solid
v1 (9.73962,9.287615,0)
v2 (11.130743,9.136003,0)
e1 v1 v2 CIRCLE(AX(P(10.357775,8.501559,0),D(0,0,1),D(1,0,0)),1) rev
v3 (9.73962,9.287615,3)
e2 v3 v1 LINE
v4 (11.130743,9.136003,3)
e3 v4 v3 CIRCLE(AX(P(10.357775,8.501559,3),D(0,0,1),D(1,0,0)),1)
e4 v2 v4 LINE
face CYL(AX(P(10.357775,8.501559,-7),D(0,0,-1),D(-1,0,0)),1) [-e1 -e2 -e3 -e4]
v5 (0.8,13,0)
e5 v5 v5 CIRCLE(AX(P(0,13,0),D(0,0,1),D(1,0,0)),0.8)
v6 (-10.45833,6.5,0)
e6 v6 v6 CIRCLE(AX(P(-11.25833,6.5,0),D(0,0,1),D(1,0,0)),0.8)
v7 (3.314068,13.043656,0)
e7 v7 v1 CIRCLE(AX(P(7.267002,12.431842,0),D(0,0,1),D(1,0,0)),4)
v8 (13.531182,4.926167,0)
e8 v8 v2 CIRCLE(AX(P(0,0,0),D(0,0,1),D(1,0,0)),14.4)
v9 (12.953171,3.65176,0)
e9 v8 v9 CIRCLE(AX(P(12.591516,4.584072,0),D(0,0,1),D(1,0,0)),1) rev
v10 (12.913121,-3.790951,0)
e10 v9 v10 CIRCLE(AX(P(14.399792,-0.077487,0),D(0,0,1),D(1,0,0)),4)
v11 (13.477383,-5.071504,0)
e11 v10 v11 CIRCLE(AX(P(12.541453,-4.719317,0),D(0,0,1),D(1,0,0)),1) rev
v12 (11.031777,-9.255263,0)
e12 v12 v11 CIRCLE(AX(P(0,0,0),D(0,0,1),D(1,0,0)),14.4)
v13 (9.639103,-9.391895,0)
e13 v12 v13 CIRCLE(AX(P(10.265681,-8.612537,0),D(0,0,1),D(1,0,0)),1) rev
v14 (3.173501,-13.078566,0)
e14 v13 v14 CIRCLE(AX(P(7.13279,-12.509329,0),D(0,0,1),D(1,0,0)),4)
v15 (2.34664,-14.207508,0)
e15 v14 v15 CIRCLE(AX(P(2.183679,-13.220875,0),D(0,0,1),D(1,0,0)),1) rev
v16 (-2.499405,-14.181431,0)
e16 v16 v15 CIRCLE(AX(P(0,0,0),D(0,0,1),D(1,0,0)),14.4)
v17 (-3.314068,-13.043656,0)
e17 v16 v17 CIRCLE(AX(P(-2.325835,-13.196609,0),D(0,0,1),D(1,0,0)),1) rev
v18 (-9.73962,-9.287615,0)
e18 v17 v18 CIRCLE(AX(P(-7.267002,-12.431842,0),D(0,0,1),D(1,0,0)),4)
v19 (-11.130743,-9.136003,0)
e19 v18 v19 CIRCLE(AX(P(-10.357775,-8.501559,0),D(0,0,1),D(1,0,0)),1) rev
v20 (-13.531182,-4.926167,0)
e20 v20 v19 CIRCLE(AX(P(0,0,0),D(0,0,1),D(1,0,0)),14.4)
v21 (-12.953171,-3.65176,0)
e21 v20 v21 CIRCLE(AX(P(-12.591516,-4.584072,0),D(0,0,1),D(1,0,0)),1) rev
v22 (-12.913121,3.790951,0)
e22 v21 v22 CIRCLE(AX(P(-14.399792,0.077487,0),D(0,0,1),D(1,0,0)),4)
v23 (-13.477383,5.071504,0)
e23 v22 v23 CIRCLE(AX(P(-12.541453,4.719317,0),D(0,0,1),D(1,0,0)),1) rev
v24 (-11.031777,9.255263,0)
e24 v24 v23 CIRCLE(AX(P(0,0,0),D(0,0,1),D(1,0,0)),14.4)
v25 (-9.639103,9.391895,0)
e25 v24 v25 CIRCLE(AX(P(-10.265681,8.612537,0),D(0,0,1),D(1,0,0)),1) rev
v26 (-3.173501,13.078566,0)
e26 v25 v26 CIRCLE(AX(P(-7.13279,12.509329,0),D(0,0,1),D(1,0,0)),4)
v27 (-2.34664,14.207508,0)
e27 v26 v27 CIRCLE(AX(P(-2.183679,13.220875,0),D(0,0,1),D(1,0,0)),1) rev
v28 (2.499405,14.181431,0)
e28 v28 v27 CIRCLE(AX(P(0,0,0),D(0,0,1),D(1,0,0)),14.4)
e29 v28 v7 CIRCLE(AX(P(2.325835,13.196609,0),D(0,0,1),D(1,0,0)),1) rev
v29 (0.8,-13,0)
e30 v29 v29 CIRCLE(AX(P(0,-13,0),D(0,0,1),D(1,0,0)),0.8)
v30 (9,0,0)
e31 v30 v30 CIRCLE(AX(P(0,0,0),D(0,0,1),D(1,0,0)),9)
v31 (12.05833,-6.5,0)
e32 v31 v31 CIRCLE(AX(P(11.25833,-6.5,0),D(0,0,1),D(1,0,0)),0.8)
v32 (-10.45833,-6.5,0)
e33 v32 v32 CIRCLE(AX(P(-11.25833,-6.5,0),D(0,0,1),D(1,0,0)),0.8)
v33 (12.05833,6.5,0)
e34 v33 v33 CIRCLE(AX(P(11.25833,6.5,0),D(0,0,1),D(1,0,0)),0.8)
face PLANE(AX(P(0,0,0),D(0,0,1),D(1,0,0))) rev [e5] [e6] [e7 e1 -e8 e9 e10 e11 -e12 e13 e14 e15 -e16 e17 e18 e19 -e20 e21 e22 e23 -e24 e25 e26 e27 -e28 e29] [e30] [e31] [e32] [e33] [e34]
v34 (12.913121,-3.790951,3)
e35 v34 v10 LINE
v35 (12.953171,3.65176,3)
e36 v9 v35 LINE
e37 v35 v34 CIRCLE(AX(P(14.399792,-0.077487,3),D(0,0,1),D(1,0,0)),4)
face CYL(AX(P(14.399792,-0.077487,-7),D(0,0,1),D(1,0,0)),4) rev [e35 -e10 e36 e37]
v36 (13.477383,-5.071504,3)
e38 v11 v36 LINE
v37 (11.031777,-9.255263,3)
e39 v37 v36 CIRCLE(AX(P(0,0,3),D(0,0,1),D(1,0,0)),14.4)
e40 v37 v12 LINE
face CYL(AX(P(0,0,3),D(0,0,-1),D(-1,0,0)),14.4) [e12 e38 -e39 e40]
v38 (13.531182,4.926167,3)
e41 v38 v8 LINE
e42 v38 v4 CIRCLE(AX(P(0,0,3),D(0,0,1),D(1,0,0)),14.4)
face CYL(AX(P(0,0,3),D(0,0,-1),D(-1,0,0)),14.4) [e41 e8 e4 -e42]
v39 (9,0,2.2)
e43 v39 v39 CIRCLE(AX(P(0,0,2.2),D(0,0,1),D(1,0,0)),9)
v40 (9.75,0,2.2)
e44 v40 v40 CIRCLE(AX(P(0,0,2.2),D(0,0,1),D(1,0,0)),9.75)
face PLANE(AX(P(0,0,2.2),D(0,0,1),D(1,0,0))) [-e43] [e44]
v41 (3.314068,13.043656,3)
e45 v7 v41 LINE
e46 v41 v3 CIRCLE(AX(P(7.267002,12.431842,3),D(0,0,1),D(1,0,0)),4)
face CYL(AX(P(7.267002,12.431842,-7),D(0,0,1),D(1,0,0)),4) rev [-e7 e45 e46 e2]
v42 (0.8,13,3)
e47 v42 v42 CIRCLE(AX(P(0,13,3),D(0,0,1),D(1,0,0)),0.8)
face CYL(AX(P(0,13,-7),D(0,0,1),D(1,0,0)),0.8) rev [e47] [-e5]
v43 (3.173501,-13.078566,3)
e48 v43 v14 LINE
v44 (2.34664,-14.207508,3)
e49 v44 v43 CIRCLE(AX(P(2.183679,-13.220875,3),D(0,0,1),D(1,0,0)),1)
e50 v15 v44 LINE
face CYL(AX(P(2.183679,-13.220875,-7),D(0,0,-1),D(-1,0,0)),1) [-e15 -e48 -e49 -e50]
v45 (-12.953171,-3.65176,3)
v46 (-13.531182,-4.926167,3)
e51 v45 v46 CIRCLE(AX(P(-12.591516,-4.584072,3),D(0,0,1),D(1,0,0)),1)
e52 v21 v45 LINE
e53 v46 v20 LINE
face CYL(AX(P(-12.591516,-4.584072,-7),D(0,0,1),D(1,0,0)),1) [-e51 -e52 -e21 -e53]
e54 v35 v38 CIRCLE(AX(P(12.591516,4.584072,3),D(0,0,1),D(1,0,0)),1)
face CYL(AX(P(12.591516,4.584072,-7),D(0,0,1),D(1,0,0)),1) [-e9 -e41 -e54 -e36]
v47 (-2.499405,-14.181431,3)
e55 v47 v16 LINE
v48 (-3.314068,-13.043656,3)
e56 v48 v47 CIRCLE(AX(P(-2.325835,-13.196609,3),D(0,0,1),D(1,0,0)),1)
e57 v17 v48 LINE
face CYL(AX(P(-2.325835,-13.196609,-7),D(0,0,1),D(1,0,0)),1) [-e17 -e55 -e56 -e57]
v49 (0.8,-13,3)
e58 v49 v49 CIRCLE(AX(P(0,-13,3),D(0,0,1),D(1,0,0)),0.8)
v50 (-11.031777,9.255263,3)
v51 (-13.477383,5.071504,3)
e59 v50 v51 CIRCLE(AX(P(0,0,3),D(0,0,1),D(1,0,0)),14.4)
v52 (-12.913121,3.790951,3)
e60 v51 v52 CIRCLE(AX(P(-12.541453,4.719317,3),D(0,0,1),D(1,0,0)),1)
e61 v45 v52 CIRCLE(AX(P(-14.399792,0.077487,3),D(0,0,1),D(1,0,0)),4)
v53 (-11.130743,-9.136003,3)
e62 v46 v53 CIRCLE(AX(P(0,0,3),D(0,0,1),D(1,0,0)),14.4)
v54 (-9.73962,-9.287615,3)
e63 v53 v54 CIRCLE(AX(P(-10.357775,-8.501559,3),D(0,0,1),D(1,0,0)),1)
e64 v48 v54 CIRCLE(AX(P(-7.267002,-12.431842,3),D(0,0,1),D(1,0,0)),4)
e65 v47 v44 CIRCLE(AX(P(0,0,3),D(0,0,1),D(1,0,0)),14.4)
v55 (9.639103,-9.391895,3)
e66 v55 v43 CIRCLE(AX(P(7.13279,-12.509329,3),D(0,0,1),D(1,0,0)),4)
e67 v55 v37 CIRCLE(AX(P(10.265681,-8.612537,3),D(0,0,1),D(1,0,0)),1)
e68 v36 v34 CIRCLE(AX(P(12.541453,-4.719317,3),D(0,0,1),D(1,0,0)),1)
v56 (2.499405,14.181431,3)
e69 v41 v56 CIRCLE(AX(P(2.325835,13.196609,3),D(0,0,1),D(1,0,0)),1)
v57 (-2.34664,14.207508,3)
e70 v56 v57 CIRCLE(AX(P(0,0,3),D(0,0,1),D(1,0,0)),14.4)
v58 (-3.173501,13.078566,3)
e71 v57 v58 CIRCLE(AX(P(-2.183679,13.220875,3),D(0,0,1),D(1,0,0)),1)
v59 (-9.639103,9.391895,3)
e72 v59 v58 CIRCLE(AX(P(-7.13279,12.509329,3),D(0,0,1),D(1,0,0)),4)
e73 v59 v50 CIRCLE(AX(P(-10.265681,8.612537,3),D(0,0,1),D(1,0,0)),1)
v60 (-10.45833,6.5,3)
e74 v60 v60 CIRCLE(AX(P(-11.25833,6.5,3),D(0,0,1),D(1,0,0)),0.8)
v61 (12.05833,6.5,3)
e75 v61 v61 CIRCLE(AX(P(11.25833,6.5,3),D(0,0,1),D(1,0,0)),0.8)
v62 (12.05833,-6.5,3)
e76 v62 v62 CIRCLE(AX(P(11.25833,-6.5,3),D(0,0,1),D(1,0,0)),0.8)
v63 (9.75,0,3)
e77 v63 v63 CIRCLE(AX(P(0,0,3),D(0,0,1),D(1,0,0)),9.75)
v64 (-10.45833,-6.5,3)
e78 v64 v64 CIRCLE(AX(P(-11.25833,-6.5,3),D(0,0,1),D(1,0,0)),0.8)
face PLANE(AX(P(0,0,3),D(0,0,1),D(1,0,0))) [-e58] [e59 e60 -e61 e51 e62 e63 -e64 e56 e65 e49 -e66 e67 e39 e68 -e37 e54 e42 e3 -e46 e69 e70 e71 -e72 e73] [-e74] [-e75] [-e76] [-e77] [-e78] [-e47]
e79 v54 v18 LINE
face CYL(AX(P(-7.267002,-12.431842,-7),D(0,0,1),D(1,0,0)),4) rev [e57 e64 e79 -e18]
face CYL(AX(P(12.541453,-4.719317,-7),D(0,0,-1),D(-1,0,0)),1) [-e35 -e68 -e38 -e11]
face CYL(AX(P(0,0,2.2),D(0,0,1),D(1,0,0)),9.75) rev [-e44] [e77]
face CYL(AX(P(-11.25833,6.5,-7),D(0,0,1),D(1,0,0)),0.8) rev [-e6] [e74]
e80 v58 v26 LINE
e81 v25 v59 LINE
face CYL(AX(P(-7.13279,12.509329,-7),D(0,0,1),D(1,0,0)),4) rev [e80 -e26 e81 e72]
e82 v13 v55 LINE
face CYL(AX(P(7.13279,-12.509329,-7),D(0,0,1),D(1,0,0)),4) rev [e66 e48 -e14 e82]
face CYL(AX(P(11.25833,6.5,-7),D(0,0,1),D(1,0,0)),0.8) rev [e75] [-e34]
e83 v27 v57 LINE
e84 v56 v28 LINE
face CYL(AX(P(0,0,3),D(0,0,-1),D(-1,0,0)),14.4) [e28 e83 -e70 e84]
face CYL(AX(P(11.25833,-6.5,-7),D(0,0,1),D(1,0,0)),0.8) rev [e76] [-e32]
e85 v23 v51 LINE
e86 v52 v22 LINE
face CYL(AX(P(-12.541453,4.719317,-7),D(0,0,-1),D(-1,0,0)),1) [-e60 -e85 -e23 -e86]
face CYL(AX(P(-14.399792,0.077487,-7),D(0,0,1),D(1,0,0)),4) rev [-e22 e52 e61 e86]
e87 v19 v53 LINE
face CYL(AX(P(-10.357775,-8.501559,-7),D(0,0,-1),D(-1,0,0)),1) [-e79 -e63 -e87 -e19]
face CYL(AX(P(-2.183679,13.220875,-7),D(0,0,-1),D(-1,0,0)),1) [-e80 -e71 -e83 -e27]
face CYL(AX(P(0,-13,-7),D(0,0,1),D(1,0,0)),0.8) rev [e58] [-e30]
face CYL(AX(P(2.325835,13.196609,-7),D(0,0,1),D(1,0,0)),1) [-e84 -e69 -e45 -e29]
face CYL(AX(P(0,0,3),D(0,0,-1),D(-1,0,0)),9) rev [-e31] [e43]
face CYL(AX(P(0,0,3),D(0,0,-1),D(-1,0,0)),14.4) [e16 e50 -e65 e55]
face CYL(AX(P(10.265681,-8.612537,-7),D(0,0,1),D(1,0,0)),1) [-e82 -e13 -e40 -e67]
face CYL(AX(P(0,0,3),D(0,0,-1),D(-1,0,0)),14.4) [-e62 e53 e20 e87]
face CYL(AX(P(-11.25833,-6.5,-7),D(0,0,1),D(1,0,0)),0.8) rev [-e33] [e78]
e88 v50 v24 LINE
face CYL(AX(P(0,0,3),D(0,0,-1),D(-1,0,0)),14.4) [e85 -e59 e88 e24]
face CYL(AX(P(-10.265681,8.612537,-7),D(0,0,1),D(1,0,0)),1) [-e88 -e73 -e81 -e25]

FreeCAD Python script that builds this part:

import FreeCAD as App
import Part
import Sketcher
Q = App.Units.Quantity


def edges_at(feature, points):
    """Names of the edges that pass closest to the given points."""
    edges = feature.Shape.Edges
    near = lambda p: min(range(len(edges)), key=lambda i: edges[i].distToShape(Part.Vertex(*p))[0])
    return sorted({f"Edge{near(p) + 1}" for p in points})

doc = App.newDocument("Part")
body = doc.addObject("PartDesign::Body", "Body")

sketch1 = body.newObject("Sketcher::SketchObject", "Sketch")
sketch1.AttachmentSupport = (doc.getObject("XY_Plane"), [""])
sketch1.MapMode = "FlatFace"
sketch1.addGeometry([
    Part.Circle(App.Vector(0, 0, 0), App.Vector(0, 0, 1), 14),
    Part.Circle(App.Vector(0, 0, 0), App.Vector(0, 0, 1), 9),
], False)
sketch1.addConstraint([
    Sketcher.Constraint("Coincident", 0, 3, -1, 1),
    Sketcher.Constraint("Coincident", 1, 3, -1, 1),
    Sketcher.Constraint("Diameter", 1, Q("18 mm")),
    Sketcher.Constraint("Diameter", 0, Q("28.8 mm")),
])
pad1 = body.newObject("PartDesign::Pad", "Pad")
pad1.Profile = sketch1
pad1.Length = 3

sketch2 = body.newObject("Sketcher::SketchObject", "Sketch001")
sketch2.AttachmentSupport = (doc.getObject("XY_Plane"), [""])
sketch2.MapMode = "FlatFace"
sketch2.AttachmentOffset = App.Placement(App.Vector(0, 0, 3), App.Rotation())
sketch2.addGeometry(Part.Circle(App.Vector(0, 0, 0), App.Vector(0, 0, 1), 10), False)
sketch2.addConstraint([
    Sketcher.Constraint("Coincident", 0, 3, -1, 1),
    Sketcher.Constraint("Diameter", 0, Q("19.5 mm")),
])
pocket1 = body.newObject("PartDesign::Pocket", "Pocket")
pocket1.Profile = sketch2
pocket1.Length = 0.8

sketch3 = body.newObject("Sketcher::SketchObject", "Sketch002")
sketch3.AttachmentSupport = (doc.getObject("XY_Plane"), [""])
sketch3.MapMode = "FlatFace"
sketch3.AttachmentOffset = App.Placement(App.Vector(0, 0, 3), App.Rotation())
sketch3.addGeometry([
    Part.Circle(App.Vector(0, 13, 0), App.Vector(0, 0, 1), 0.8),
    Part.Circle(App.Vector(11.3, 6.5, 0), App.Vector(0, 0, 1), 0.8),
    Part.Circle(App.Vector(11.3, -6.5, 0), App.Vector(0, 0, 1), 0.8),
    Part.Circle(App.Vector(0, -13, 0), App.Vector(0, 0, 1), 0.8),
    Part.Circle(App.Vector(-11.3, -6.5, 0), App.Vector(0, 0, 1), 0.8),
    Part.Circle(App.Vector(-11.3, 6.5, 0), App.Vector(0, 0, 1), 0.8),
], False)
sketch3.addConstraint([
    Sketcher.Constraint("Equal", 0, 1),
    Sketcher.Constraint("Equal", 1, 2),
    Sketcher.Constraint("Equal", 2, 3),
    Sketcher.Constraint("Equal", 3, 4),
    Sketcher.Constraint("Equal", 4, 5),
    Sketcher.Constraint("Symmetric", 0, 3, 3, 3, -1, 1),
    Sketcher.Constraint("Symmetric", 1, 3, 4, 3, -1, 1),
    Sketcher.Constraint("Symmetric", 2, 3, 5, 3, -1, 1),
    Sketcher.Constraint("Symmetric", 2, 3, 4, 3, -2),
    Sketcher.Constraint("PointOnObject", 0, 3, -2),
    Sketcher.Constraint("Diameter", 0, Q("1.6 mm")),
    Sketcher.Constraint("DistanceY", -1, 1, 0, 3, Q("13 mm")),
    Sketcher.Constraint("DistanceY", 2, 3, 1, 3, Q("13 mm")),
    Sketcher.Constraint("DistanceX", -1, 1, 1, 3, Q("11.25833 mm")),
])
pocket2 = body.newObject("PartDesign::Pocket", "Pocket001")
pocket2.Profile = sketch3
pocket2.Length = 10

sketch4 = body.newObject("Sketcher::SketchObject", "Sketch003")
sketch4.AttachmentSupport = (doc.getObject("XY_Plane"), [""])
sketch4.MapMode = "FlatFace"
sketch4.AttachmentOffset = App.Placement(App.Vector(0, 0, 3), App.Rotation())
sketch4.addGeometry([
    Part.Circle(App.Vector(7.3, 12.4, 0), App.Vector(0, 0, 1), 4),
    Part.Circle(App.Vector(14.4, -0.1, 0), App.Vector(0, 0, 1), 4),
    Part.Circle(App.Vector(7.1, -12.5, 0), App.Vector(0, 0, 1), 4),
    Part.Circle(App.Vector(-7.3, -12.4, 0), App.Vector(0, 0, 1), 4),
    Part.Circle(App.Vector(-14.4, 0.1, 0), App.Vector(0, 0, 1), 4),
    Part.Circle(App.Vector(-7.1, 12.5, 0), App.Vector(0, 0, 1), 4),
], False)
sketch4.addConstraint([
    Sketcher.Constraint("Equal", 0, 1),
    Sketcher.Constraint("Equal", 1, 2),
    Sketcher.Constraint("Equal", 2, 3),
    Sketcher.Constraint("Equal", 3, 4),
    Sketcher.Constraint("Equal", 4, 5),
    Sketcher.Constraint("Symmetric", 0, 3, 3, 3, -1, 1),
    Sketcher.Constraint("Symmetric", 1, 3, 4, 3, -1, 1),
    Sketcher.Constraint("Symmetric", 2, 3, 5, 3, -1, 1),
    Sketcher.Constraint("Diameter", 0, Q("8 mm")),
    Sketcher.Constraint("DistanceX", -1, 1, 0, 3, Q("7.267002 mm")),
    Sketcher.Constraint("DistanceX", 2, 3, 1, 3, Q("7.267002 mm")),
    Sketcher.Constraint("DistanceY", -1, 1, 0, 3, Q("12.431842 mm")),
    Sketcher.Constraint("DistanceX", -1, 1, 1, 3, Q("14.399792 mm")),
    Sketcher.Constraint("DistanceY", 2, 3, -1, 1, Q("12.509329 mm")),
    Sketcher.Constraint("DistanceY", 1, 3, 0, 3, Q("12.509329 mm")),
])
pocket3 = body.newObject("PartDesign::Pocket", "Pocket002")
pocket3.Profile = sketch4
pocket3.Length = 10
doc.recompute()

fillet = body.newObject("PartDesign::Fillet", "Fillet")
fillet.Base = (pocket3, edges_at(pocket3, [
    (3.567, 13.951, 1.5),
    (10.406, 9.953, 1.5),
    (13.866, 3.887, 1.5),
    (13.823, -4.036, 1.5),
    (10.299, -10.065, 1.5),
    (3.416, -13.989, 1.5),
    (-3.567, -13.951, 1.5),
    (-10.406, -9.953, 1.5),
    (-13.866, -3.887, 1.5),
    (-13.823, 4.036, 1.5),
    (-10.299, 10.065, 1.5),
    (-3.416, 13.989, 1.5),
]))
fillet.Radius = 1

doc.recompute()
